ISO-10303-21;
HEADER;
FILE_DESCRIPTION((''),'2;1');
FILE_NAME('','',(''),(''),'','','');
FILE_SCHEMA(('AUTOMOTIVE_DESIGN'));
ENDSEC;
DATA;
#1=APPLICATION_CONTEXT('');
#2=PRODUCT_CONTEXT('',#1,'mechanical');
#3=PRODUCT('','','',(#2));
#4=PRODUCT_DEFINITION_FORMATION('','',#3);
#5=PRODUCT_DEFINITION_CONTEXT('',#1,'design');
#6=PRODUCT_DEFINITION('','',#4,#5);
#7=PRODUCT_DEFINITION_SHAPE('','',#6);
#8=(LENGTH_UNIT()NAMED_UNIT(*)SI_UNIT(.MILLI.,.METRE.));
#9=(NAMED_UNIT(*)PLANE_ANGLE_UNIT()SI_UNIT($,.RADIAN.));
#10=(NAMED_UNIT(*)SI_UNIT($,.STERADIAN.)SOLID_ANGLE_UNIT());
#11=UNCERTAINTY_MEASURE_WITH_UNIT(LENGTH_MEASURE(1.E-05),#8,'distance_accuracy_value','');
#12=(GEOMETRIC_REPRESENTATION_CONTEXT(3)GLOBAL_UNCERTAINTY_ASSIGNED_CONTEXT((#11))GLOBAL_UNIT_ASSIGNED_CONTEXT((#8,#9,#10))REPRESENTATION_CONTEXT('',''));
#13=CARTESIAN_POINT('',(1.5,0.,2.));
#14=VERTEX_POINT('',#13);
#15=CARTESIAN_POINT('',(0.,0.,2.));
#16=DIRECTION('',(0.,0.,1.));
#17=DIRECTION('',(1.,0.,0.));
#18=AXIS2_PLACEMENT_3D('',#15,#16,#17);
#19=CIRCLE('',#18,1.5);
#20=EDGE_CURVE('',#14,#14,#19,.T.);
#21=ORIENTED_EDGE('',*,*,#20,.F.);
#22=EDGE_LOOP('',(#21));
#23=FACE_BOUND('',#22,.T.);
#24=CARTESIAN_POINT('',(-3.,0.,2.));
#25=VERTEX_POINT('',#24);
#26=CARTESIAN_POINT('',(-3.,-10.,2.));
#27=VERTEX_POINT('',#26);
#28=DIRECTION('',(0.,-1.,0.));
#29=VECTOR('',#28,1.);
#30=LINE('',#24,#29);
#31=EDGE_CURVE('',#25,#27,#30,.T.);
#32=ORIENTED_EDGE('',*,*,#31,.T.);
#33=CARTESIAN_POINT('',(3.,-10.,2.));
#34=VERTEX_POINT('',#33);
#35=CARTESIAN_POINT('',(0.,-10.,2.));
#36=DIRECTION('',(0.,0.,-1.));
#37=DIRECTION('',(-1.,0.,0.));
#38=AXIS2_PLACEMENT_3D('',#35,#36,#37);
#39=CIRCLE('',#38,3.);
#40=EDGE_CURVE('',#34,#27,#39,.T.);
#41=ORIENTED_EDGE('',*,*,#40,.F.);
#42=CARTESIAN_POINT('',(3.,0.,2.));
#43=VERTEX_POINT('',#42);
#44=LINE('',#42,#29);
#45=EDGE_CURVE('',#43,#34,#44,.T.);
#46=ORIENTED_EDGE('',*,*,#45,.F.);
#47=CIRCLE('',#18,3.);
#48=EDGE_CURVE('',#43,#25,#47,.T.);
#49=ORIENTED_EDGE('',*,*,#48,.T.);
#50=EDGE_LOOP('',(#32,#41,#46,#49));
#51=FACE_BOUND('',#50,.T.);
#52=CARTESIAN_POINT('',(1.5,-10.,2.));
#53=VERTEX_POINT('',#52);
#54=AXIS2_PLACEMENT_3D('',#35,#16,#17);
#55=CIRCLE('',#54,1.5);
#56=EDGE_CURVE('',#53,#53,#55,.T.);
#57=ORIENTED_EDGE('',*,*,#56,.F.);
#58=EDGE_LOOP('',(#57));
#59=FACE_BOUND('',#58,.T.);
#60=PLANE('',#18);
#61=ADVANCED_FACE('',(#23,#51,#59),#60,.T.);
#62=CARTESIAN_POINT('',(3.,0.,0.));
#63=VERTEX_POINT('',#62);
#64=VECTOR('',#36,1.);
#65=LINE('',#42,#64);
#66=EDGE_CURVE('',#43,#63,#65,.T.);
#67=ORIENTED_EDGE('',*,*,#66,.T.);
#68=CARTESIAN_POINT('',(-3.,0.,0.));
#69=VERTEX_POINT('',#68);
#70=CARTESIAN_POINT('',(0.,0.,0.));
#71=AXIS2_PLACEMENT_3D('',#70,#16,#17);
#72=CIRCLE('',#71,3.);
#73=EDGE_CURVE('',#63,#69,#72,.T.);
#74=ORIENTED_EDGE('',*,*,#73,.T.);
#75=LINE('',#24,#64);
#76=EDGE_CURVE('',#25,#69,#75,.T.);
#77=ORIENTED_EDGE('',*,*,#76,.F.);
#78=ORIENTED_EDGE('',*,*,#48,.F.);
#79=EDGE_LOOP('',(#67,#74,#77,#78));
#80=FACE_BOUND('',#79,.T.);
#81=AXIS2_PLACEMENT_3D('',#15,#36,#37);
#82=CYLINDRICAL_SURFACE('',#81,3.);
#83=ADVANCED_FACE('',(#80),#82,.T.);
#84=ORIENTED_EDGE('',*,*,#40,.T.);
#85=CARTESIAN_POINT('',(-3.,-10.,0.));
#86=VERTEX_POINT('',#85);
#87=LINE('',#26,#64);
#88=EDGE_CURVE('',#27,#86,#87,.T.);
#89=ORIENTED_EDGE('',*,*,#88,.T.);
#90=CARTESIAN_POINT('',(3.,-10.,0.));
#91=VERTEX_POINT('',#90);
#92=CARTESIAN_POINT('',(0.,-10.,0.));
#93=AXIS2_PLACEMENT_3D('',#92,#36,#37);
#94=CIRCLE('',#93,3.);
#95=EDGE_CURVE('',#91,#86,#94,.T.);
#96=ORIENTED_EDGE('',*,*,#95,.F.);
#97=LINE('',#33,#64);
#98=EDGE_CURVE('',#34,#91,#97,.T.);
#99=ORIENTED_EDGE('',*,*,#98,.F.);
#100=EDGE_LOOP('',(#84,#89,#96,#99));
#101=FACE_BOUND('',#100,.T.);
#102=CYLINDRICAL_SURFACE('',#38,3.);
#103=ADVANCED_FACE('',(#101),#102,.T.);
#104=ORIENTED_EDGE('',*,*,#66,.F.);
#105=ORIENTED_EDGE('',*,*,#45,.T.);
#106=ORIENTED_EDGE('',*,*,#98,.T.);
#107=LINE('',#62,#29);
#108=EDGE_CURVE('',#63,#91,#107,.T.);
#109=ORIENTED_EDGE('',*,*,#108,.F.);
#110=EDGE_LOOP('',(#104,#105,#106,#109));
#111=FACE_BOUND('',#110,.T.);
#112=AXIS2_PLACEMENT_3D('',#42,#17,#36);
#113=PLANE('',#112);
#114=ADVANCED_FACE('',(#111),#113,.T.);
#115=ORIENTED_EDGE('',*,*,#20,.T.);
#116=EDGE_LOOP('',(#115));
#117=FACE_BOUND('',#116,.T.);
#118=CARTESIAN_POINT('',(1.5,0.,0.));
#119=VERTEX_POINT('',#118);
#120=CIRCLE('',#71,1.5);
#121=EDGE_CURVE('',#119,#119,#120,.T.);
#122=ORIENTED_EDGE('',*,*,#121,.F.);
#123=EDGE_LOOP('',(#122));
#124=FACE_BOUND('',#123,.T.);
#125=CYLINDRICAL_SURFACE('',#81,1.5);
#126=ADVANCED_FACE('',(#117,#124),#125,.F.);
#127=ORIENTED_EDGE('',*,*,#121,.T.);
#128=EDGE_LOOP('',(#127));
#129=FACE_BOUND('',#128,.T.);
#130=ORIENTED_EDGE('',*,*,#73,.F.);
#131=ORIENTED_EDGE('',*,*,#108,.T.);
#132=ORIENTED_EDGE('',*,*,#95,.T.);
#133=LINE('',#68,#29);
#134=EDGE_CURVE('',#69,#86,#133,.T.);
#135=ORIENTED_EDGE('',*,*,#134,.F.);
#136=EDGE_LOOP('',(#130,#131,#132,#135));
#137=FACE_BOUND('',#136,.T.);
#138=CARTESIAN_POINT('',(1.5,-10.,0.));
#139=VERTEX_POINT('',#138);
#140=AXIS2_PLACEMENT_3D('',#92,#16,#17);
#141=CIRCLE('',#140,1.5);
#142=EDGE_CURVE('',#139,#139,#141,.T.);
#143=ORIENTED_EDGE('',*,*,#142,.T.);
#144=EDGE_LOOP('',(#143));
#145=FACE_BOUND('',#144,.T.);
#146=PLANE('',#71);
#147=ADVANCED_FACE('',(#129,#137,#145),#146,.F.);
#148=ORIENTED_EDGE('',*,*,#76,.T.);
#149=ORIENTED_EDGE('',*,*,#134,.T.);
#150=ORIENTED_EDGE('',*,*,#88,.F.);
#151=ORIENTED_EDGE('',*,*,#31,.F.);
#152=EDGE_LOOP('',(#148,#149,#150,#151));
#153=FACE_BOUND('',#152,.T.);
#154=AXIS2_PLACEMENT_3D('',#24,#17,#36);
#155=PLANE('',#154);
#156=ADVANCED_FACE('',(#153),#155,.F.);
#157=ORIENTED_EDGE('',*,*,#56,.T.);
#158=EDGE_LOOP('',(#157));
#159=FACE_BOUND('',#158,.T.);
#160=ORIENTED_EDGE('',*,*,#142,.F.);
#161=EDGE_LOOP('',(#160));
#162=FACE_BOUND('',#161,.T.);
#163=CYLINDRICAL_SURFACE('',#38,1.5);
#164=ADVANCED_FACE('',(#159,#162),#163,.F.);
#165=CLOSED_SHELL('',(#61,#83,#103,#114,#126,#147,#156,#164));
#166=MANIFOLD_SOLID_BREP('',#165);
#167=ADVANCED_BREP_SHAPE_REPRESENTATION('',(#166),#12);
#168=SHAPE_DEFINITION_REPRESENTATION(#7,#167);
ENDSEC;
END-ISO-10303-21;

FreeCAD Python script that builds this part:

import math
import FreeCAD as App
import Part
import Sketcher
from FreeCAD import Vector

doc = App.newDocument("Part")
body = doc.addObject("PartDesign::Body", "Body")

sketch1 = body.newObject("Sketcher::SketchObject", "Sketch")
sketch1.AttachmentSupport = (doc.getObject("XY_Plane"), [""])
sketch1.MapMode = "FlatFace"
sketch1.addGeometry(Part.LineSegment(Vector(3, -10, 0), Vector(3, 0, 0)), False)
sketch1.addGeometry(Part.ArcOfCircle(Part.Circle(Vector(0, 0, 0), Vector(0, 0, 1), 3), math.radians(0), math.radians(180)), False)
sketch1.addGeometry(Part.LineSegment(Vector(-3, 0, 0), Vector(-3, -10, 0)), False)
sketch1.addGeometry(Part.ArcOfCircle(Part.Circle(Vector(0, -10, 0), Vector(0, 0, 1), 3), math.radians(180), math.radians(360)), False)
sketch1.addGeometry(Part.Circle(Vector(0, -10, 0), Vector(0, 0, 1), 1.5), False)
sketch1.addGeometry(Part.Circle(Vector(0, 0, 0), Vector(0, 0, 1), 1.5), False)
sketch1.addConstraint(Sketcher.Constraint("Tangent", 0, 2, 1, 1))
sketch1.addConstraint(Sketcher.Constraint("Tangent", 1, 2, 2, 1))
sketch1.addConstraint(Sketcher.Constraint("Tangent", 2, 2, 3, 1))
sketch1.addConstraint(Sketcher.Constraint("Tangent", 3, 2, 0, 1))
sketch1.addConstraint(Sketcher.Constraint("Vertical", 0))
sketch1.addConstraint(Sketcher.Constraint("Vertical", 2))
sketch1.addConstraint(Sketcher.Constraint("Coincident", 1, 3, -1, 1))
sketch1.addConstraint(Sketcher.Constraint("Coincident", 5, 3, -1, 1))
sketch1.addConstraint(Sketcher.Constraint("Coincident", 4, 3, 3, 3))
sketch1.addConstraint(Sketcher.Constraint("Equal", 4, 5))
sketch1.addConstraint(Sketcher.Constraint("Diameter", 4, 3.0))
sketch1.addConstraint(Sketcher.Constraint("Radius", 1, 3.0))
sketch1.addConstraint(Sketcher.Constraint("DistanceY", 0, 1, 0, 2, 10.0))
pad1 = body.newObject("PartDesign::Pad", "Pad")
pad1.Profile = sketch1
pad1.Length = 2

doc.recompute()
